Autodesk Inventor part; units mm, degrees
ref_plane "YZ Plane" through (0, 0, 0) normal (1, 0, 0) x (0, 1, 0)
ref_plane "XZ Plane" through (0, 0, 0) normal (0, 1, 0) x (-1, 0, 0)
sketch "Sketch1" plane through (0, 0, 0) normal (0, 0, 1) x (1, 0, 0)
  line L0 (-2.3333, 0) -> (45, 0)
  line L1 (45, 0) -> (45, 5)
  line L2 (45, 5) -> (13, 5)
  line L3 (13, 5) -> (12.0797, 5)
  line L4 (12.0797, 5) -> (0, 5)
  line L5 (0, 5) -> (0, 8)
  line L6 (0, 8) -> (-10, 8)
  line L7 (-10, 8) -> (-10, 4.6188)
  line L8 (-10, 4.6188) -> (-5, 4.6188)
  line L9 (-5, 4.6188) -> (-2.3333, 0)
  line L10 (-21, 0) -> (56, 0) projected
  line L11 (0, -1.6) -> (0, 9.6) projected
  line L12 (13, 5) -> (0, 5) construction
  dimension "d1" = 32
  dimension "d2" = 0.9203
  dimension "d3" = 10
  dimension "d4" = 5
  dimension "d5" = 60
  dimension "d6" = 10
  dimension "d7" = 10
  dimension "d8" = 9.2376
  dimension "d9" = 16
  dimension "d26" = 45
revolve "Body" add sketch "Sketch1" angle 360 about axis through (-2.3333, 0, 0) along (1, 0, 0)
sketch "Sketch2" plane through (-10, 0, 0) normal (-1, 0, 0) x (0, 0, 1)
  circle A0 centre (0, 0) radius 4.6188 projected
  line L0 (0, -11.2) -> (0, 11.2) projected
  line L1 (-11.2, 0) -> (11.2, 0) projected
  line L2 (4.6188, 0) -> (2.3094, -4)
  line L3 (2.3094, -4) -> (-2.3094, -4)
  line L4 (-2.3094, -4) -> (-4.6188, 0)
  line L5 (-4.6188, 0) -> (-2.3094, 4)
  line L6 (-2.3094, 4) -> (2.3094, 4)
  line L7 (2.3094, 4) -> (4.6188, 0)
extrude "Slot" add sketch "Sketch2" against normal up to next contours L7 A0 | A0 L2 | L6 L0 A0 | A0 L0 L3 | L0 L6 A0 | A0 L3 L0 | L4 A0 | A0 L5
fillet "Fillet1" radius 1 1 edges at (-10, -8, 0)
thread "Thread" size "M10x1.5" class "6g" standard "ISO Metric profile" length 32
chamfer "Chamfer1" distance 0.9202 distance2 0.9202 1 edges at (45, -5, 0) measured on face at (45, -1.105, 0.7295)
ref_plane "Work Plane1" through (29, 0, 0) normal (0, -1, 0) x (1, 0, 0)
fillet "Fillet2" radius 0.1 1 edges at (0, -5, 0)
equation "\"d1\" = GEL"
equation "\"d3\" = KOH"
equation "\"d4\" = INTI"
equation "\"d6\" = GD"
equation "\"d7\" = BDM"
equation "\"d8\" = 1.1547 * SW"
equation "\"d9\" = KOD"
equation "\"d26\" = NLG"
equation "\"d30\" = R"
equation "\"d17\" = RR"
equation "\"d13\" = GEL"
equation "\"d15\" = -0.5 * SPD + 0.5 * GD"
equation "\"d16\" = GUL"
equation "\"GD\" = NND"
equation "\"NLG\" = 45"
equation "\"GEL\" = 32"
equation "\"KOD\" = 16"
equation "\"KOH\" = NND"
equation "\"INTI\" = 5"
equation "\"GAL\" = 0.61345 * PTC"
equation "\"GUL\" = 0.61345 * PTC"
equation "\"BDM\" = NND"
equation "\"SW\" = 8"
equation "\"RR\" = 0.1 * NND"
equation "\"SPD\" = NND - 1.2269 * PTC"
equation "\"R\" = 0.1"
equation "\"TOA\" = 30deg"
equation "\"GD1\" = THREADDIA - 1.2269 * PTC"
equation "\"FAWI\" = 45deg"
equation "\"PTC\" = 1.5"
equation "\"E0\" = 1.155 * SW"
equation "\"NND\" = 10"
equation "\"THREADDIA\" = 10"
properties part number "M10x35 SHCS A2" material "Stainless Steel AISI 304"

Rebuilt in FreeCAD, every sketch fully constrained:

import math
import FreeCAD as App
import Part
import Sketcher
Q = App.Units.Quantity


def edges_at(feature, points):
    """Names of the edges that pass closest to the given points."""
    edges = feature.Shape.Edges
    near = lambda p: min(range(len(edges)), key=lambda i: edges[i].distToShape(Part.Vertex(*p))[0])
    return sorted({f"Edge{near(p) + 1}" for p in points})


def add_polygon(sketch, points):
    """Adds a closed chain of lines whose ends are joined by coincident constraints."""
    first, n = sketch.GeometryCount, len(points)
    for a, b in zip(points, points[1:] + points[:1]):
        sketch.addGeometry(Part.LineSegment(App.Vector(*a, 0), App.Vector(*b, 0)), False)
    for i in range(n):
        sketch.addConstraint(Sketcher.Constraint("Coincident", first + i, 2, first + (i + 1) % n, 1))

doc = App.newDocument("Part")
body = doc.addObject("PartDesign::Body", "Body")

# Sketch on XY plane
sketch1 = doc.addObject("Sketcher::SketchObject", "Sketch")
body.addObject(sketch1)
sketch1.AttachmentSupport = (doc.XY_Plane, [""])
sketch1.MapMode = "FlatFace"
add_polygon(sketch1, [(-5, 4.6188), (-2.3333, 0), (45, 0), (45, 5), (0, 5), (0, 8), (-10, 8), (-10, 4.6188)])  # lines 0-7
sketch1.addConstraint([
    Sketcher.Constraint("Horizontal", 1),
    Sketcher.Constraint("Vertical", 2),
    Sketcher.Constraint("Horizontal", 3),
    Sketcher.Constraint("Vertical", 4),
    Sketcher.Constraint("Horizontal", 5),
    Sketcher.Constraint("Vertical", 6),
    Sketcher.Constraint("Horizontal", 7),
    Sketcher.Constraint("PointOnObject", 0, 2, -1),
    Sketcher.Constraint("PointOnObject", 3, 2, -2),
    Sketcher.Constraint("Equal", 7, 2),
    Sketcher.Constraint("DistanceX", 3, 2, 3, 1, Q("45 mm")),
    Sketcher.Constraint("DistanceX", 5, 2, 5, 1, Q("10 mm")),
    Sketcher.Constraint("DistanceX", 7, 1, 7, 2, Q("5 mm")),
    Sketcher.Constraint("Angle", 0, Q("-59.9997 deg")),
    Sketcher.Constraint("DistanceY", 4, 1, 4, 2, Q("3 mm")),
    Sketcher.Constraint("DistanceX", 1, 1, 1, 2, Q("47.3333 mm")),
])
revolution = doc.addObject("PartDesign::Revolution", "Revolution")
body.addObject(revolution)
revolution.Profile = sketch1
revolution.ReferenceAxis = (sketch1, ["H_Axis"])
revolution.Angle = 360

# Sketch on YZ plane
sketch2 = doc.addObject("Sketcher::SketchObject", "Sketch001")
body.addObject(sketch2)
sketch2.AttachmentSupport = (doc.YZ_Plane, [""])
sketch2.MapMode = "FlatFace"
sketch2.AttachmentOffset = App.Placement(App.Vector(0, 0, -10), App.Rotation())
sketch2.addGeometry([
    Part.LineSegment(App.Vector(4, 2.3094, 0), App.Vector(0, 4.6188, 0)),  # 0
    Part.ArcOfCircle(Part.Circle(App.Vector(0, 0, 0), App.Vector(0, 0, 1), 4.6188), math.radians(29.999988), math.radians(90)),  # 1
    Part.ArcOfCircle(Part.Circle(App.Vector(0, 0, 0), App.Vector(0, 0, 1), 4.6188), math.radians(90), math.radians(150.000012)),  # 2
    Part.LineSegment(App.Vector(0, 4.6188, 0), App.Vector(-4, 2.3094, 0)),  # 3
    Part.ArcOfCircle(Part.Circle(App.Vector(0, 0, 0), App.Vector(0, 0, 1), 4.6188), math.radians(-29.999988), math.radians(29.999988)),  # 4
    Part.LineSegment(App.Vector(4, 2.3094, 0), App.Vector(4, -2.3094, 0)),  # 5
    Part.LineSegment(App.Vector(-4, 2.3094, 0), App.Vector(-4, -2.3094, 0)),  # 6
    Part.ArcOfCircle(Part.Circle(App.Vector(0, 0, 0), App.Vector(0, 0, 1), 4.6188), math.radians(150.000012), math.radians(209.999988)),  # 7
    Part.LineSegment(App.Vector(-4, -2.3094, 0), App.Vector(0, -4.6188, 0)),  # 8
    Part.ArcOfCircle(Part.Circle(App.Vector(0, 0, 0), App.Vector(0, 0, 1), 4.6188), math.radians(-150.000012), math.radians(-90)),  # 9
    Part.ArcOfCircle(Part.Circle(App.Vector(0, 0, 0), App.Vector(0, 0, 1), 4.6188), math.radians(-90), math.radians(-29.999988)),  # 10
    Part.LineSegment(App.Vector(0, -4.6188, 0), App.Vector(4, -2.3094, 0)),  # 11
], False)
sketch2.addConstraint([
    Sketcher.Constraint("Coincident", 0, 1, 1, 1),
    Sketcher.Constraint("Coincident", 1, 2, 0, 2),
    Sketcher.Constraint("Coincident", 2, 1, 3, 1),
    Sketcher.Constraint("Coincident", 3, 2, 2, 2),
    Sketcher.Constraint("Coincident", 4, 1, 5, 2),
    Sketcher.Constraint("Coincident", 5, 1, 4, 2),
    Sketcher.Constraint("Coincident", 6, 1, 7, 1),
    Sketcher.Constraint("Coincident", 7, 2, 6, 2),
    Sketcher.Constraint("Coincident", 8, 1, 9, 1),
    Sketcher.Constraint("Coincident", 9, 2, 8, 2),
    Sketcher.Constraint("Coincident", 10, 1, 11, 1),
    Sketcher.Constraint("Coincident", 11, 2, 10, 2),
    Sketcher.Constraint("Vertical", 5),
    Sketcher.Constraint("Vertical", 6),
    Sketcher.Constraint("Coincident", 1, 3, -1, 1),
    Sketcher.Constraint("Coincident", 2, 3, -1, 1),
    Sketcher.Constraint("Coincident", 4, 3, -1, 1),
    Sketcher.Constraint("Coincident", 7, 3, -1, 1),
    Sketcher.Constraint("Coincident", 9, 3, -1, 1),
    Sketcher.Constraint("Coincident", 10, 3, -1, 1),
    Sketcher.Constraint("Coincident", 2, 1, 1, 2),
    Sketcher.Constraint("Coincident", 5, 1, 0, 1),
    Sketcher.Constraint("Coincident", 6, 1, 3, 2),
    Sketcher.Constraint("Coincident", 8, 1, 7, 2),
    Sketcher.Constraint("Coincident", 10, 1, 9, 2),
    Sketcher.Constraint("PointOnObject", 1, 2, -2),
    Sketcher.Constraint("PointOnObject", 9, 2, -2),
    Sketcher.Constraint("Parallel", 0, 8),
    Sketcher.Constraint("Parallel", 3, 11),
    Sketcher.Constraint("Angle", 0, Q("150 deg")),
    Sketcher.Constraint("DistanceX", -1, 1, 0, 1, Q("4 mm")),
])
pad1 = doc.addObject("PartDesign::Pad", "Pad")
body.addObject(pad1)
pad1.Profile = sketch2
pad1.Type = "UpToFirst"
doc.recompute()

fillet = doc.addObject("PartDesign::Fillet", "Fillet")
body.addObject(fillet)
fillet.Base = (pad1, edges_at(pad1, [(-10, -8, 0)]))
fillet.Radius = 1
doc.recompute()

chamfer = doc.addObject("PartDesign::Chamfer", "Chamfer")
body.addObject(chamfer)
chamfer.Base = (fillet, edges_at(fillet, [(45, -5, 0)]))
chamfer.ChamferType = "Two distances"
chamfer.Size = 0.9202
chamfer.Size2 = 0.9202
doc.recompute()

fillet2 = doc.addObject("PartDesign::Fillet", "Fillet001")
body.addObject(fillet2)
fillet2.Base = (chamfer, edges_at(chamfer, [(0, -5, 0)]))
fillet2.Radius = 0.1

doc.recompute()
